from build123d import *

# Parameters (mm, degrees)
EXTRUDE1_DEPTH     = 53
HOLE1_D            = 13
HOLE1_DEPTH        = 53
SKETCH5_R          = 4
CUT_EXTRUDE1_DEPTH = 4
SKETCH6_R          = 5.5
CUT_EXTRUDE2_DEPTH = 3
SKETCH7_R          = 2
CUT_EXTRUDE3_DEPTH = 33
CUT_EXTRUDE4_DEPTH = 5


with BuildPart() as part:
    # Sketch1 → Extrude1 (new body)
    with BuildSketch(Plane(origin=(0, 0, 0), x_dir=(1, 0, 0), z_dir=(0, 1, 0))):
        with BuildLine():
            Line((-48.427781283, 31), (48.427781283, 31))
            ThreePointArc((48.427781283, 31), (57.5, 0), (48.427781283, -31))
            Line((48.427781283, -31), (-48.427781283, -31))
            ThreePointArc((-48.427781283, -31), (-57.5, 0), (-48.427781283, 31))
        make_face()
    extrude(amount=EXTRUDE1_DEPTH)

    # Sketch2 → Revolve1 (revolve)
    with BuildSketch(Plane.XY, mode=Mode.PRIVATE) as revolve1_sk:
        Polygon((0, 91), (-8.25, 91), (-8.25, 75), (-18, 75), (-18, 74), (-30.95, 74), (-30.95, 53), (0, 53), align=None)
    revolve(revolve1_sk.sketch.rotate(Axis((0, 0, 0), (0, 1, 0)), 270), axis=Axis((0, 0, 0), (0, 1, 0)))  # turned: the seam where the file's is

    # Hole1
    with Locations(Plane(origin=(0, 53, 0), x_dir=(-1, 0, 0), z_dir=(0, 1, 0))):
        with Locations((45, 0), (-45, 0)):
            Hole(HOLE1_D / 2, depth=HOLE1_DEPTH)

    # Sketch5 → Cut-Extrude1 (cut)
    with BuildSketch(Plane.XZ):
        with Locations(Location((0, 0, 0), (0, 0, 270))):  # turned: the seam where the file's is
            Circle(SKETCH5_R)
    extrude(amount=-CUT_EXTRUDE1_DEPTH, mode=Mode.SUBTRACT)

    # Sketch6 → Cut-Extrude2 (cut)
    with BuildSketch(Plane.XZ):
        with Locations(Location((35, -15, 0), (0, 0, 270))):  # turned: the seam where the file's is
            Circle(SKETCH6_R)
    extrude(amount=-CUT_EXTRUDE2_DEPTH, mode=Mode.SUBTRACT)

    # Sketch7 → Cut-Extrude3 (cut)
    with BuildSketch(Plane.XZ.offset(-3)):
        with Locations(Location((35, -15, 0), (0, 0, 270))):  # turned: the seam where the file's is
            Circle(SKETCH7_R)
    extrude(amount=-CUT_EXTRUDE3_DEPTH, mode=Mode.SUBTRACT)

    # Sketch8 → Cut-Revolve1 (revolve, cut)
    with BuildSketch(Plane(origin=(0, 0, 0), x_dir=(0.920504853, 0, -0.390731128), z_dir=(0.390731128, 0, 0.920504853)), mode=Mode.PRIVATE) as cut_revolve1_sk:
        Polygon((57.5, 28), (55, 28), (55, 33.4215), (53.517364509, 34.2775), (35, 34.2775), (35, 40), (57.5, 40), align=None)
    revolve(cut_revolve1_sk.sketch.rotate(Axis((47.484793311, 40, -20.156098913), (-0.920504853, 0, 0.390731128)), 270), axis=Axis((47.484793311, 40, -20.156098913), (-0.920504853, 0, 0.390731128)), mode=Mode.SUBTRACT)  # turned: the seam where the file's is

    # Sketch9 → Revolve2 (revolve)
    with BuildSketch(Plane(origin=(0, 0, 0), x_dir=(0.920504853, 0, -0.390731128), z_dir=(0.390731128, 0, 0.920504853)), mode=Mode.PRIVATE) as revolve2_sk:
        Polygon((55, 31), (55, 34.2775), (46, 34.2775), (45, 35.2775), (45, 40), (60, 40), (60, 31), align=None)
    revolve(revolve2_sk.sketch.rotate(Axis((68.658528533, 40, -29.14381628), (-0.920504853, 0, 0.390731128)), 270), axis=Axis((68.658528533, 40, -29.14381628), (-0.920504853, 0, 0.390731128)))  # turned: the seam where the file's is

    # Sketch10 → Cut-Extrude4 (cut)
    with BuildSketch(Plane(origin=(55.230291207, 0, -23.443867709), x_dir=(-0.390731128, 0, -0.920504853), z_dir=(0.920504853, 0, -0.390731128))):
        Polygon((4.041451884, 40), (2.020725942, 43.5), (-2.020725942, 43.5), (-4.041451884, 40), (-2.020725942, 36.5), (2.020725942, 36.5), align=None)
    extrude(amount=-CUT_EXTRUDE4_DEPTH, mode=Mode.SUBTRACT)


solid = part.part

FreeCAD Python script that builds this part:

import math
import FreeCAD as App
import Part
import Sketcher
Q = App.Units.Quantity


def add_polygon(sketch, points):
    """Adds a closed chain of lines whose ends are joined by coincident constraints."""
    first, n = sketch.GeometryCount, len(points)
    for a, b in zip(points, points[1:] + points[:1]):
        sketch.addGeometry(Part.LineSegment(App.Vector(*a, 0), App.Vector(*b, 0)), False)
    for i in range(n):
        sketch.addConstraint(Sketcher.Constraint("Coincident", first + i, 2, first + (i + 1) % n, 1))

doc = App.newDocument("Part")
body = doc.addObject("PartDesign::Body", "Body")

sketch1 = body.newObject("Sketcher::SketchObject", "Sketch")
sketch1.AttachmentSupport = (doc.getObject("XZ_Plane"), [""])
sketch1.MapMode = "FlatFace"
sketch1.addGeometry(Part.LineSegment(App.Vector(48, -31, 0), App.Vector(-48, -31, 0)), False)
sketch1.addGeometry(Part.ArcOfCircle(Part.Circle(App.Vector(0, 0, 0), App.Vector(0, 0, 1), 58), math.radians(147), math.radians(213)), False)
sketch1.addGeometry(Part.LineSegment(App.Vector(-48, 31, 0), App.Vector(48, 31, 0)), False)
sketch1.addGeometry(Part.ArcOfCircle(Part.Circle(App.Vector(0, 0, 0), App.Vector(0, 0, 1), 58), math.radians(-33), math.radians(33)), False)
sketch1.addConstraint(Sketcher.Constraint("Coincident", 0, 2, 1, 2))
sketch1.addConstraint(Sketcher.Constraint("Coincident", 1, 1, 2, 1))
sketch1.addConstraint(Sketcher.Constraint("Coincident", 2, 2, 3, 2))
sketch1.addConstraint(Sketcher.Constraint("Coincident", 3, 1, 0, 1))
sketch1.addConstraint(Sketcher.Constraint("Horizontal", 0))
sketch1.addConstraint(Sketcher.Constraint("Horizontal", 2))
sketch1.addConstraint(Sketcher.Constraint("Coincident", 1, 3, -1, 1))
sketch1.addConstraint(Sketcher.Constraint("Coincident", 3, 3, -1, 1))
sketch1.addConstraint(Sketcher.Constraint("Equal", 1, 3))
sketch1.addConstraint(Sketcher.Constraint("Vertical", 0, 2, 1, 1))
sketch1.addConstraint(Sketcher.Constraint("Radius", 1, 57.5))
sketch1.addConstraint(Sketcher.Constraint("DistanceY", 0, 2, -1, 1, 31.0))
pad1 = body.newObject("PartDesign::Pad", "Pad")
pad1.Profile = sketch1
pad1.Length = 53
pad1.Reversed = True

sketch2 = body.newObject("Sketcher::SketchObject", "Sketch001")
sketch2.AttachmentSupport = (doc.getObject("XY_Plane"), [""])
sketch2.MapMode = "FlatFace"
add_polygon(sketch2, [(0, 91), (-8.2, 91), (-8.2, 75), (-18, 75), (-18, 74), (-30.9, 74), (-30.9, 53), (0, 53)])
sketch2.addConstraint(Sketcher.Constraint("Horizontal", 0))
sketch2.addConstraint(Sketcher.Constraint("Vertical", 1))
sketch2.addConstraint(Sketcher.Constraint("Horizontal", 2))
sketch2.addConstraint(Sketcher.Constraint("Vertical", 3))
sketch2.addConstraint(Sketcher.Constraint("Horizontal", 4))
sketch2.addConstraint(Sketcher.Constraint("Vertical", 5))
sketch2.addConstraint(Sketcher.Constraint("Horizontal", 6))
sketch2.addConstraint(Sketcher.Constraint("Vertical", 7))
sketch2.addConstraint(Sketcher.Constraint("PointOnObject", 6, 2, -2))
sketch2.addConstraint(Sketcher.Constraint("DistanceY", 1, 2, 1, 1, 16.0))
sketch2.addConstraint(Sketcher.Constraint("DistanceY", 3, 2, 3, 1, 1.0))
sketch2.addConstraint(Sketcher.Constraint("DistanceY", 5, 2, 5, 1, 21.0))
sketch2.addConstraint(Sketcher.Constraint("DistanceY", -1, 1, 0, 2, 91.0))
sketch2.addConstraint(Sketcher.Constraint("DistanceX", 2, 2, -1, 1, 18.0))
sketch2.addConstraint(Sketcher.Constraint("DistanceX", 0, 2, 0, 1, 8.25))
sketch2.addConstraint(Sketcher.Constraint("DistanceX", 4, 2, 4, 1, 12.95))
revolution = body.newObject("PartDesign::Revolution", "Revolution")
revolution.Profile = sketch2
revolution.ReferenceAxis = (sketch2, ["V_Axis"])
revolution.Angle = 360

sketch3 = body.newObject("Sketcher::SketchObject", "Sketch002")
sketch3.AttachmentSupport = (doc.getObject("XZ_Plane"), [""])
sketch3.MapMode = "FlatFace"
sketch3.AttachmentOffset = App.Placement(App.Vector(0, 0, -53), App.Rotation())
sketch3.addGeometry(Part.Circle(App.Vector(-45, 0, 0), App.Vector(0, 0, 1), 6), False)
sketch3.addGeometry(Part.Circle(App.Vector(45, 0, 0), App.Vector(0, 0, 1), 6), False)
sketch3.addConstraint(Sketcher.Constraint("Equal", 0, 1))
sketch3.addConstraint(Sketcher.Constraint("Symmetric", 0, 3, 1, 3, -1, 1))
sketch3.addConstraint(Sketcher.Constraint("PointOnObject", 0, 3, -1))
sketch3.addConstraint(Sketcher.Constraint("Diameter", 0, 13.0))
sketch3.addConstraint(Sketcher.Constraint("DistanceX", 0, 3, -1, 1, 45.0))
doc.recompute()
hole = body.newObject("PartDesign::Hole", "Hole")
hole.Profile = sketch3
hole.ThreadType = "None"
hole.Diameter = 13
hole.DepthType = "Dimension"
hole.Depth = 53
hole.DrillPoint = "Flat"
hole.Reversed = True

sketch4 = body.newObject("Sketcher::SketchObject", "Sketch003")
sketch4.AttachmentSupport = (doc.getObject("XZ_Plane"), [""])
sketch4.MapMode = "FlatFace"
sketch4.addGeometry(Part.Circle(App.Vector(0, 0, 0), App.Vector(0, 0, 1), 4), False)
sketch4.addConstraint(Sketcher.Constraint("Coincident", 0, 3, -1, 1))
sketch4.addConstraint(Sketcher.Constraint("Diameter", 0, 8.0))
pocket1 = body.newObject("PartDesign::Pocket", "Pocket")
pocket1.Profile = sketch4
pocket1.Length = 4

sketch5 = body.newObject("Sketcher::SketchObject", "Sketch004")
sketch5.AttachmentSupport = (doc.getObject("XZ_Plane"), [""])
sketch5.MapMode = "FlatFace"
sketch5.addGeometry(Part.Circle(App.Vector(35, -15, 0), App.Vector(0, 0, 1), 6), False)
sketch5.addConstraint(Sketcher.Constraint("Diameter", 0, 11.0))
sketch5.addConstraint(Sketcher.Constraint("DistanceX", -1, 1, 0, 3, 35.0))
sketch5.addConstraint(Sketcher.Constraint("DistanceY", 0, 3, -1, 1, 15.0))
pocket2 = body.newObject("PartDesign::Pocket", "Pocket001")
pocket2.Profile = sketch5
pocket2.Length = 3

sketch6 = body.newObject("Sketcher::SketchObject", "Sketch005")
sketch6.AttachmentSupport = (doc.getObject("XZ_Plane"), [""])
sketch6.MapMode = "FlatFace"
sketch6.AttachmentOffset = App.Placement(App.Vector(0, 0, -3), App.Rotation())
sketch6.addGeometry(Part.Circle(App.Vector(35, -15, 0), App.Vector(0, 0, 1), 2), False)
sketch6.addConstraint(Sketcher.Constraint("Diameter", 0, 4.0))
sketch6.addConstraint(Sketcher.Constraint("DistanceX", -1, 1, 0, 3, 35.0))
sketch6.addConstraint(Sketcher.Constraint("DistanceY", 0, 3, -1, 1, 15.0))
pocket3 = body.newObject("PartDesign::Pocket", "Pocket002")
pocket3.Profile = sketch6
pocket3.Length = 33

sketch7 = body.newObject("Sketcher::SketchObject", "Sketch006")
sketch7.Placement = App.Placement(App.Vector(0, 0, 0), App.Rotation(App.Vector(0.920504854, 0, -0.390731128), App.Vector(0, 1.000000001, 0), App.Vector(0.390731128, 0, 0.920504854), "ZXY"))
add_polygon(sketch7, [(55, 28), (57.5, 28), (57.5, 40), (35, 40), (35, 34.3), (53.5, 34.3), (55, 33.4)])
sketch7.addGeometry(Part.LineSegment(App.Vector(57.5, 40, 0), App.Vector(35, 40, 0)), True)
sketch7.addConstraint(Sketcher.Constraint("Horizontal", 0))
sketch7.addConstraint(Sketcher.Constraint("Vertical", 1))
sketch7.addConstraint(Sketcher.Constraint("Horizontal", 2))
sketch7.addConstraint(Sketcher.Constraint("Vertical", 3))
sketch7.addConstraint(Sketcher.Constraint("Horizontal", 4))
sketch7.addConstraint(Sketcher.Constraint("Vertical", 6))
sketch7.addConstraint(Sketcher.Constraint("Horizontal", 7))
sketch7.addConstraint(Sketcher.Constraint("Coincident", 7, 1, 1, 2))
sketch7.addConstraint(Sketcher.Constraint("Vertical", 3, 2, 7, 2))
sketch7.addConstraint(Sketcher.Constraint("DistanceY", 1, 1, 1, 2, 12.0))
sketch7.addConstraint(Sketcher.Constraint("Angle", 5, Q("-30 deg")))
sketch7.addConstraint(Sketcher.Constraint("DistanceX", 0, 1, 0, 2, 2.5))
sketch7.addConstraint(Sketcher.Constraint("DistanceX", 2, 2, 2, 1, 22.5))
sketch7.addConstraint(Sketcher.Constraint("DistanceY", -1, 1, 0, 2, 28.0))
sketch7.addConstraint(Sketcher.Constraint("DistanceX", -1, 1, 2, 2, 35.0))
sketch7.addConstraint(Sketcher.Constraint("Distance", 5, 1.712))
sketch7.addConstraint(Sketcher.Constraint("DistanceY", 3, 2, 3, 1, 5.7225))
groove = body.newObject("PartDesign::Groove", "Groove")
groove.Profile = sketch7
groove.ReferenceAxis = (sketch7, ["Axis0"])
groove.Angle = 360

sketch8 = body.newObject("Sketcher::SketchObject", "Sketch007")
sketch8.Placement = App.Placement(App.Vector(0, 0, 0), App.Rotation(App.Vector(0.920504854, 0, -0.390731128), App.Vector(0, 1.000000001, 0), App.Vector(0.390731128, 0, 0.920504854), "ZXY"))
add_polygon(sketch8, [(55, 34.3), (55, 31), (60, 31), (60, 40), (45, 40), (45, 35.3), (46, 34.3)])
sketch8.addGeometry(Part.LineSegment(App.Vector(60, 40, 0), App.Vector(45, 40, 0)), True)
sketch8.addConstraint(Sketcher.Constraint("Vertical", 0))
sketch8.addConstraint(Sketcher.Constraint("Horizontal", 1))
sketch8.addConstraint(Sketcher.Constraint("Vertical", 2))
sketch8.addConstraint(Sketcher.Constraint("Horizontal", 3))
sketch8.addConstraint(Sketcher.Constraint("Vertical", 4))
sketch8.addConstraint(Sketcher.Constraint("Horizontal", 6))
sketch8.addConstraint(Sketcher.Constraint("Horizontal", 7))
sketch8.addConstraint(Sketcher.Constraint("Coincident", 7, 1, 2, 2))
sketch8.addConstraint(Sketcher.Constraint("Vertical", 4, 2, 7, 2))
sketch8.addConstraint(Sketcher.Constraint("Equal", 6, 2))
sketch8.addConstraint(Sketcher.Constraint("DistanceX", 1, 1, 1, 2, 5.0))
sketch8.addConstraint(Sketcher.Constraint("DistanceX", 3, 2, 3, 1, 15.0))
sketch8.addConstraint(Sketcher.Constraint("DistanceX", 6, 1, 6, 2, 9.0))
sketch8.addConstraint(Sketcher.Constraint("Angle", 5, Q("-45 deg")))
sketch8.addConstraint(Sketcher.Constraint("DistanceX", -1, 1, 0, 2, 55.0))
sketch8.addConstraint(Sketcher.Constraint("DistanceY", -1, 1, 0, 2, 31.0))
sketch8.addConstraint(Sketcher.Constraint("DistanceY", 0, 2, 0, 1, 3.2775))
revolution2 = body.newObject("PartDesign::Revolution", "Revolution001")
revolution2.Profile = sketch8
revolution2.ReferenceAxis = (sketch8, ["Axis0"])
revolution2.Angle = 360

sketch9 = body.newObject("Sketcher::SketchObject", "Sketch008")
sketch9.Placement = App.Placement(App.Vector(55.230291, 0, -23.443868), App.Rotation(App.Vector(-0.390731128, 0, -0.920504854), App.Vector(0, 1.000000001, 0), App.Vector(0.920504854, 0, -0.390731128), "ZXY"))
add_polygon(sketch9, [(4, 40), (2, 43.5), (-2, 43.5), (-4, 40), (-2, 36.5), (2, 36.5)])
sketch9.addConstraint(Sketcher.Constraint("Horizontal", 1))
sketch9.addConstraint(Sketcher.Constraint("Horizontal", 4))
sketch9.addConstraint(Sketcher.Constraint("Symmetric", 2, 2, 5, 2, -2))
sketch9.addConstraint(Sketcher.Constraint("Parallel", 0, 3))
sketch9.addConstraint(Sketcher.Constraint("Parallel", 2, 5))
sketch9.addConstraint(Sketcher.Constraint("Vertical", 1, 2, 3, 2))
sketch9.addConstraint(Sketcher.Constraint("Vertical", 0, 2, 4, 2))
sketch9.addConstraint(Sketcher.Constraint("Angle", 0, Q("120 deg")))
sketch9.addConstraint(Sketcher.Constraint("DistanceY", -1, 1, 2, 2, 40.0))
sketch9.addConstraint(Sketcher.Constraint("DistanceY", 3, 2, 1, 2, 7.0))
sketch9.addConstraint(Sketcher.Constraint("DistanceX", 1, 2, 1, 1, 4.041452))
pocket4 = body.newObject("PartDesign::Pocket", "Pocket003")
pocket4.Profile = sketch9
pocket4.Length = 5

doc.recompute()
